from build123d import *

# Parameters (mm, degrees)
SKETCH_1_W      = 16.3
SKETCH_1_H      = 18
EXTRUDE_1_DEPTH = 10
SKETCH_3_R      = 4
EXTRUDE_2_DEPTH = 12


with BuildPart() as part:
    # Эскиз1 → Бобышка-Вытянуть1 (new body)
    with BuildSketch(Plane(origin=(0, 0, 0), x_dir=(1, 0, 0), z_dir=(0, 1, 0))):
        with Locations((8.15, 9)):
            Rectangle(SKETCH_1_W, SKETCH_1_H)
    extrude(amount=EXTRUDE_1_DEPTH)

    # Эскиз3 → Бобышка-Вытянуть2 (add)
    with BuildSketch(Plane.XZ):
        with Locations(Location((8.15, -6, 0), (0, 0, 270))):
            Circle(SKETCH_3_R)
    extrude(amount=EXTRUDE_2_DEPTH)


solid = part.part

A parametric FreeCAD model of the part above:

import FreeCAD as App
import Part
import Sketcher

V = App.Vector

doc = App.newDocument("Part")
body = doc.addObject("PartDesign::Body", "Body")

# Sketch on XZ plane
sketch1 = doc.addObject("Sketcher::SketchObject", "Sketch")
body.addObject(sketch1)
sketch1.AttachmentSupport = (doc.XZ_Plane, [""])
sketch1.MapMode = "FlatFace"
sketch1.addGeometry(Part.LineSegment(V(0, -18, 0), V(0, 0, 0)), False)
sketch1.addGeometry(Part.LineSegment(V(0, 0, 0), V(16.3, 0, 0)), False)
sketch1.addGeometry(Part.LineSegment(V(16.3, 0, 0), V(16.3, -18, 0)), False)
sketch1.addGeometry(Part.LineSegment(V(16.3, -18, 0), V(0, -18, 0)), False)
sketch1.addConstraint(Sketcher.Constraint("Coincident", 0, 2, 1, 1))
sketch1.addConstraint(Sketcher.Constraint("Coincident", 1, 2, 2, 1))
sketch1.addConstraint(Sketcher.Constraint("Coincident", 2, 2, 3, 1))
sketch1.addConstraint(Sketcher.Constraint("Coincident", 3, 2, 0, 1))
sketch1.addConstraint(Sketcher.Constraint("Vertical", 0))
sketch1.addConstraint(Sketcher.Constraint("Horizontal", 1))
sketch1.addConstraint(Sketcher.Constraint("Vertical", 2))
sketch1.addConstraint(Sketcher.Constraint("Horizontal", 3))
sketch1.addConstraint(Sketcher.Constraint("Coincident", 0, 2, -1, 1))
sketch1.addConstraint(Sketcher.Constraint("DistanceY", 0, 1, 0, 2, 18.0))
sketch1.addConstraint(Sketcher.Constraint("DistanceX", 1, 1, 1, 2, 16.3))
pad1 = doc.addObject("PartDesign::Pad", "Pad")
body.addObject(pad1)
pad1.Profile = sketch1
pad1.Length = 10
pad1.Reversed = True

# Sketch on XZ plane
sketch2 = doc.addObject("Sketcher::SketchObject", "Sketch001")
body.addObject(sketch2)
sketch2.AttachmentSupport = (doc.XZ_Plane, [""])
sketch2.MapMode = "FlatFace"
sketch2.addGeometry(Part.Circle(V(8.15, -6, 0), V(0, 0, 1), 4), False)
sketch2.addConstraint(Sketcher.Constraint("Diameter", 0, 8.0))
sketch2.addConstraint(Sketcher.Constraint("DistanceY", 0, 3, -1, 1, 6.0))
sketch2.addConstraint(Sketcher.Constraint("DistanceX", -1, 1, 0, 3, 8.15))
pad2 = doc.addObject("PartDesign::Pad", "Pad001")
body.addObject(pad2)
pad2.Profile = sketch2
pad2.Length = 12

doc.recompute()
